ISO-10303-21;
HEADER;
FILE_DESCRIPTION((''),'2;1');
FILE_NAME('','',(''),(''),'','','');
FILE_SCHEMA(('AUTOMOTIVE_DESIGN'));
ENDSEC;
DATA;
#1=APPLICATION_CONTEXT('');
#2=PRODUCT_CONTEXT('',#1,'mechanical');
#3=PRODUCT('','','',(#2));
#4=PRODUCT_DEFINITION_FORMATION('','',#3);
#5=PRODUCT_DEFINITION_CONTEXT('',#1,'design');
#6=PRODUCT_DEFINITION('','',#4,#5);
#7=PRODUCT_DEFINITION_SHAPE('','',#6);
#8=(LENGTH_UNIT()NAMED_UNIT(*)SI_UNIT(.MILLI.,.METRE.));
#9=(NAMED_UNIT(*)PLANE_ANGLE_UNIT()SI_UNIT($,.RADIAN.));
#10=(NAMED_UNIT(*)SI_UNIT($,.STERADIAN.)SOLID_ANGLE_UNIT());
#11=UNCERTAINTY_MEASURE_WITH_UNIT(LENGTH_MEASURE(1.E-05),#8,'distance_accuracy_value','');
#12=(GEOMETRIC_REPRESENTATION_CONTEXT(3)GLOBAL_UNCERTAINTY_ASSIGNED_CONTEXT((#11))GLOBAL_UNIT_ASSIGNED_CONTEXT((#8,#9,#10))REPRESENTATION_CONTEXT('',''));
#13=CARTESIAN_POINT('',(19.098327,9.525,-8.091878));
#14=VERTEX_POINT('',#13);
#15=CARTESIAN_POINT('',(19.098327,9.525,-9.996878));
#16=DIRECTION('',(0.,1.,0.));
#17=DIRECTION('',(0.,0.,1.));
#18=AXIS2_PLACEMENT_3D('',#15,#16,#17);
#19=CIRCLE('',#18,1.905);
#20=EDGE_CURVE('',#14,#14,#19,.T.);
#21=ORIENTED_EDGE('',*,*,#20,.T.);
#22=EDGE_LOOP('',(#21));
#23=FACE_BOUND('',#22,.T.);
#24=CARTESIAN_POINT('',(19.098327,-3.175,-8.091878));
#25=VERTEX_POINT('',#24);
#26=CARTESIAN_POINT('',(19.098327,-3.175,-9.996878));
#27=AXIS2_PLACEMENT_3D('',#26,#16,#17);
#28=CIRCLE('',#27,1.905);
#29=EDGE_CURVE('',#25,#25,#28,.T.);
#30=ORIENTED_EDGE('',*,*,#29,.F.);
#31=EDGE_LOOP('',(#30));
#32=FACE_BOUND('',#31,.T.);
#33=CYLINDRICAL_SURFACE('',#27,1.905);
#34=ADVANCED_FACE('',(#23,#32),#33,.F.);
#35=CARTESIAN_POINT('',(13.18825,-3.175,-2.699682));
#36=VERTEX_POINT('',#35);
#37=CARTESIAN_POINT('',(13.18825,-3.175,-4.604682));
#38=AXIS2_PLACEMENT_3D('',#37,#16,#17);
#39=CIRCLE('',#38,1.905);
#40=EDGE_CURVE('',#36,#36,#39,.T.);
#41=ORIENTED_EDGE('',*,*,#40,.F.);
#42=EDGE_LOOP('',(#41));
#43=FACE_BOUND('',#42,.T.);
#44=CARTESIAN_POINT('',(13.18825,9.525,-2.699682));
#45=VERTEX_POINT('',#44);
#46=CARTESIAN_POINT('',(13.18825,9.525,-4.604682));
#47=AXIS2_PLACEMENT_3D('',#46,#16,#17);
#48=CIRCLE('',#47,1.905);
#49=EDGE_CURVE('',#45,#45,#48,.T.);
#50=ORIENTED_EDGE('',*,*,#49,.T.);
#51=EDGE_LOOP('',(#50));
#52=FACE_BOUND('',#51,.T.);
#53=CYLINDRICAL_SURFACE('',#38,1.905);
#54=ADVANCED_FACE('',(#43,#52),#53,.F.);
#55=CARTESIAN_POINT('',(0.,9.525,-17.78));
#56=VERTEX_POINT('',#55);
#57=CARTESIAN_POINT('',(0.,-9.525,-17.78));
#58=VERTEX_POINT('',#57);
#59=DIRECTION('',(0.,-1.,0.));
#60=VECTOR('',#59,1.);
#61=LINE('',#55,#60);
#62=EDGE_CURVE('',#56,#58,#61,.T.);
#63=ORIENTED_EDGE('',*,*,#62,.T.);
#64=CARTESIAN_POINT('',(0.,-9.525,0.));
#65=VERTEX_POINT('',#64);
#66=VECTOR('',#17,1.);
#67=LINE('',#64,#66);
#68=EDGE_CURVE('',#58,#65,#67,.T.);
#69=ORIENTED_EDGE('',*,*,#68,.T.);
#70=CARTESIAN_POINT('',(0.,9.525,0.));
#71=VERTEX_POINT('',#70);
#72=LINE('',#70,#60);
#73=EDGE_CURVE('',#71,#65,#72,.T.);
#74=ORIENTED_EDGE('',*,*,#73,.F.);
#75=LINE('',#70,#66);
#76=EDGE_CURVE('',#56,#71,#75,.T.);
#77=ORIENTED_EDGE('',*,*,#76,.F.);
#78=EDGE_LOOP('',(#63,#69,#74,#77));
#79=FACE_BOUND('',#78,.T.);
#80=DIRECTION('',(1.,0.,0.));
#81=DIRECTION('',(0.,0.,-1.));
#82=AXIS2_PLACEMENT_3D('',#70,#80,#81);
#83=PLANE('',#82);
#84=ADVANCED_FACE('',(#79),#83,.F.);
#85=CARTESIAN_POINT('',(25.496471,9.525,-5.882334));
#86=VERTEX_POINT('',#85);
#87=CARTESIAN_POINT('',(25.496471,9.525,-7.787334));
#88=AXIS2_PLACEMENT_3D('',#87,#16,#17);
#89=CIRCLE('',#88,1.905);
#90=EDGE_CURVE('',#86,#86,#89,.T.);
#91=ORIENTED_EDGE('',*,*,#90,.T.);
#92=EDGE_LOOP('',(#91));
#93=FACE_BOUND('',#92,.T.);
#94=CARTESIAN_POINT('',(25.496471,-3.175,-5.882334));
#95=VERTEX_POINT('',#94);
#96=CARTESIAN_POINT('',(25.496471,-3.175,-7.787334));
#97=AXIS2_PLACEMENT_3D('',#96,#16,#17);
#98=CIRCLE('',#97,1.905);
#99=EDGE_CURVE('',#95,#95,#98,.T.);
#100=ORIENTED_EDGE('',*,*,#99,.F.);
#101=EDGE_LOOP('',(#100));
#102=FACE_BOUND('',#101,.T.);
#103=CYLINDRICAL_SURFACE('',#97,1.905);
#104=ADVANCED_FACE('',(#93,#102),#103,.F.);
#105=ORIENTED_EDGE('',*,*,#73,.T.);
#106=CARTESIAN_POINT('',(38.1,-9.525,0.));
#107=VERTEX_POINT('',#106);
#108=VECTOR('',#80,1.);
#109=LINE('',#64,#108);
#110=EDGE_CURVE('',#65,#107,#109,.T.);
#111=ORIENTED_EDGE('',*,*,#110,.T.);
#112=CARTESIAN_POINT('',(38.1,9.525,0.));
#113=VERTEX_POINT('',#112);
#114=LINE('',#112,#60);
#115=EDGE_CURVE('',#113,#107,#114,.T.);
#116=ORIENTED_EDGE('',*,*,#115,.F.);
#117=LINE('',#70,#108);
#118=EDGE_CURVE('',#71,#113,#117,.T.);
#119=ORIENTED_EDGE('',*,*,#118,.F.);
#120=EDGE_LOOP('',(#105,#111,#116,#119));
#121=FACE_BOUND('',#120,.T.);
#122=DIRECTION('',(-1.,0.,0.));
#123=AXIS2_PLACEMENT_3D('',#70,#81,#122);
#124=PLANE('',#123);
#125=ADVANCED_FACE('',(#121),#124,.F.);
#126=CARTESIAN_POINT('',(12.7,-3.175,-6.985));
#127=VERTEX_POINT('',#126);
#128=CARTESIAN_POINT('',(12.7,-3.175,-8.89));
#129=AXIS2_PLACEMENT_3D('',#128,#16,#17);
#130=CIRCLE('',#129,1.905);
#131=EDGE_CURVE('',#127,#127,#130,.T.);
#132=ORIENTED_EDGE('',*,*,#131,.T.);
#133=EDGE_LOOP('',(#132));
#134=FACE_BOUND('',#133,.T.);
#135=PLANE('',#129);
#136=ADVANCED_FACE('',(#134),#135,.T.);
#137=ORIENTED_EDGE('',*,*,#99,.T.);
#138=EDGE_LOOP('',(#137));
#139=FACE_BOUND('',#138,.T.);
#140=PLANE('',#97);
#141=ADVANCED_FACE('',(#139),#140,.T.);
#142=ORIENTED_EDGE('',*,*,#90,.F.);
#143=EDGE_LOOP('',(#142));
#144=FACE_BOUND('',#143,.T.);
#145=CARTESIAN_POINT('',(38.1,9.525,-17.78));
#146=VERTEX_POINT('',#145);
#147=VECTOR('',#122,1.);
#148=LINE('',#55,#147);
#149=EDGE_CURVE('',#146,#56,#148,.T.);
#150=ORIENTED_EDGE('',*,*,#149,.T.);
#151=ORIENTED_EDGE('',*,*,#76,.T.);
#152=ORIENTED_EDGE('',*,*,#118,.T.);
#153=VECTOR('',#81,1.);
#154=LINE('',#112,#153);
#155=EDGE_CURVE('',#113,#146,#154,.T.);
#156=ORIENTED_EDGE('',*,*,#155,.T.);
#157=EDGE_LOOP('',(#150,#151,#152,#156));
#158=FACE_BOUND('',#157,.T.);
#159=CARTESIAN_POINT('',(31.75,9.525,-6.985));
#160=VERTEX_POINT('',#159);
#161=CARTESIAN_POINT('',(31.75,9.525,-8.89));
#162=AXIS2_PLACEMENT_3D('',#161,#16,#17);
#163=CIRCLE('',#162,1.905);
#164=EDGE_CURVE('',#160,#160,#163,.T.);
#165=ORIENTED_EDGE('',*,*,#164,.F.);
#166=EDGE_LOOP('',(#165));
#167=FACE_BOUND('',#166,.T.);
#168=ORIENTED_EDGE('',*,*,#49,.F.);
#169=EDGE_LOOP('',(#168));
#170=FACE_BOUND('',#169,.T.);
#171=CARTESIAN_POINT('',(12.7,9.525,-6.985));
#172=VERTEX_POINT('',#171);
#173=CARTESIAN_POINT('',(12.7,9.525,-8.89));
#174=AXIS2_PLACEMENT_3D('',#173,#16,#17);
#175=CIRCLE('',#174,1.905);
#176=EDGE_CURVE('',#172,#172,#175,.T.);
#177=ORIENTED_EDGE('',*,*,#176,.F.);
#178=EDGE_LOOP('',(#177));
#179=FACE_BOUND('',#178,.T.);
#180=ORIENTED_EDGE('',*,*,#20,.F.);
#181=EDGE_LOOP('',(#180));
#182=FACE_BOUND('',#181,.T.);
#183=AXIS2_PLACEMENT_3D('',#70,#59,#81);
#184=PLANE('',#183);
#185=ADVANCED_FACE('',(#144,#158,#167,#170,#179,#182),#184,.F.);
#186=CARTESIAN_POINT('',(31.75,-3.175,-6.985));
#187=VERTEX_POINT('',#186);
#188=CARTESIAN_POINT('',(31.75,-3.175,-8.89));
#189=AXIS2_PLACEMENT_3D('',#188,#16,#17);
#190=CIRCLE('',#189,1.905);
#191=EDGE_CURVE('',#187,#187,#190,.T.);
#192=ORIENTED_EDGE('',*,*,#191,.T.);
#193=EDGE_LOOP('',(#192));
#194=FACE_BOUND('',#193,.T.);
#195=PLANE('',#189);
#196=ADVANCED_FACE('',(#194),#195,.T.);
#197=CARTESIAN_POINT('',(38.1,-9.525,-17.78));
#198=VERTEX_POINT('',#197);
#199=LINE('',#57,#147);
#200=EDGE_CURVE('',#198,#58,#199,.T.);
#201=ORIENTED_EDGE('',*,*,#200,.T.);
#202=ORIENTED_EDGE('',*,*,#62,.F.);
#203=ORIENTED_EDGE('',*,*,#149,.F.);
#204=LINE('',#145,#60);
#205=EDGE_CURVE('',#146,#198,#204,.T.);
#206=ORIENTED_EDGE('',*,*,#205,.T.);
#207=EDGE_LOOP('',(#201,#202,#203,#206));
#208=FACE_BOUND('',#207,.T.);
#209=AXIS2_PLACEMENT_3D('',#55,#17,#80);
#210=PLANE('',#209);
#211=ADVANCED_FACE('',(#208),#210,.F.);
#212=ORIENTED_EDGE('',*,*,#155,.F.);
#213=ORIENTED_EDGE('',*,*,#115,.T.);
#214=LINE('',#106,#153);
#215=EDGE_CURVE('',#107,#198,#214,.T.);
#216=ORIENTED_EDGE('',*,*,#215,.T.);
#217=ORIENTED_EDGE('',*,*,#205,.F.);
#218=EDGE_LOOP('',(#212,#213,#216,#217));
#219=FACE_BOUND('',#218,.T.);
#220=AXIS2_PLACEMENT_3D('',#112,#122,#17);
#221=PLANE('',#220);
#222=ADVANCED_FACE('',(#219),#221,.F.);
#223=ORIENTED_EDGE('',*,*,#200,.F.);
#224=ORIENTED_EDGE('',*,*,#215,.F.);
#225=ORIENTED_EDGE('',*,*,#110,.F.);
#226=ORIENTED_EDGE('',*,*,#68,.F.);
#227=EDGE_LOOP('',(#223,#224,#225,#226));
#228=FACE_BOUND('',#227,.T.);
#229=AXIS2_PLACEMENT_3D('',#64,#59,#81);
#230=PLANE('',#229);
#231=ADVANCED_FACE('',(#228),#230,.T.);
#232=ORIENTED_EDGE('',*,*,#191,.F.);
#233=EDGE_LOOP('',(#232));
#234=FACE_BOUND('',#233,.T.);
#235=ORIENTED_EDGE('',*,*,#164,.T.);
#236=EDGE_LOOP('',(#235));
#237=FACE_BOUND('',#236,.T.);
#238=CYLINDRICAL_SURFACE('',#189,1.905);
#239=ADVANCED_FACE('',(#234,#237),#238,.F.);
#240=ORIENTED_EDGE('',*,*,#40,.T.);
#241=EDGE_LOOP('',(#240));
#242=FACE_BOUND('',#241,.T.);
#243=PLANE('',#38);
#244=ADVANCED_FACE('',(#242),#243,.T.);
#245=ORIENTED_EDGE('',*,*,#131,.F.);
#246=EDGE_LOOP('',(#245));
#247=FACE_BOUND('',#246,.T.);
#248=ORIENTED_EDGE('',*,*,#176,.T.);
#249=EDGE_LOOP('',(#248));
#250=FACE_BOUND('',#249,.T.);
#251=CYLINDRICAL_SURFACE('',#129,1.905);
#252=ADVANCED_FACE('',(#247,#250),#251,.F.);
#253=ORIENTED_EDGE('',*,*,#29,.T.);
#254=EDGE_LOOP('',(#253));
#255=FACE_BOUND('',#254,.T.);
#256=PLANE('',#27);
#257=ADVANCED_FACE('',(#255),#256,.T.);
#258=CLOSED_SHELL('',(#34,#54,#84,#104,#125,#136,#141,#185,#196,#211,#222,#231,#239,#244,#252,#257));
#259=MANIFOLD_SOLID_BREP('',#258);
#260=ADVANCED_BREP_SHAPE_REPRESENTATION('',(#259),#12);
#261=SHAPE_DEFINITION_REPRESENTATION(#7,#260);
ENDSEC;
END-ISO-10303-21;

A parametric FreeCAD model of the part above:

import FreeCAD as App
import Part
import Sketcher
from FreeCAD import Vector
Q = App.Units.Quantity

doc = App.newDocument("Part")
params = doc.addObject("Spreadsheet::Sheet", "Params")
for row, (alias, value) in enumerate([
    ("sketch1_width", "1.5 in"),
    ("sketch1_height", "0.7 in"),
    ("pad1_length", "0.75 in"),
    ("sketch2_diameter", "0.15 in"),
    ("pocket1_length", "0.5 in"),
], start=1):
    params.set(f"A{row}", alias)
    params.set(f"B{row}", "=" + value)
    params.setAlias(f"B{row}", alias)

body = doc.addObject("PartDesign::Body", "Body")

sketch1 = body.newObject("Sketcher::SketchObject", "Sketch")
sketch1.AttachmentSupport = (doc.getObject("XZ_Plane"), [""])
sketch1.MapMode = "FlatFace"
sketch1.addGeometry([
    Part.LineSegment(Vector(0, -18, 0), Vector(0, 0, 0)),
    Part.LineSegment(Vector(0, 0, 0), Vector(38, 0, 0)),
    Part.LineSegment(Vector(38, 0, 0), Vector(38, -18, 0)),
    Part.LineSegment(Vector(38, -18, 0), Vector(0, -18, 0)),
], False)
sketch1.addConstraint([
    Sketcher.Constraint("Coincident", 0, 2, 1, 1),
    Sketcher.Constraint("Coincident", 1, 2, 2, 1),
    Sketcher.Constraint("Coincident", 2, 2, 3, 1),
    Sketcher.Constraint("Coincident", 3, 2, 0, 1),
    Sketcher.Constraint("Vertical", 0),
    Sketcher.Constraint("Horizontal", 1),
    Sketcher.Constraint("Vertical", 2),
    Sketcher.Constraint("Horizontal", 3),
    Sketcher.Constraint("Coincident", 0, 2, -1, 1),
    Sketcher.Constraint("DistanceX", 1, 1, 1, 2, Q("1.5 in")),
    Sketcher.Constraint("DistanceY", 0, 1, 0, 2, Q("0.7 in")),
])
sketch1.setExpression("Constraints[9]", "Params.sketch1_width")
sketch1.setExpression("Constraints[10]", "Params.sketch1_height")
pad1 = body.newObject("PartDesign::Pad", "Pad")
pad1.Profile = sketch1
pad1.setExpression("Length", "Params.pad1_length")
pad1.Midplane = True

sketch2 = body.newObject("Sketcher::SketchObject", "Sketch001")
sketch2.AttachmentSupport = (doc.getObject("XZ_Plane"), [""])
sketch2.MapMode = "FlatFace"
sketch2.AttachmentOffset = App.Placement(Vector(0, 0, -0.375 * 25.4), App.Rotation())
sketch2.addGeometry([
    Part.Circle(Vector(31.8, -8.9, 0), Vector(0, 0, 1), 1.9),
    Part.Circle(Vector(19.1, -10, 0), Vector(0, 0, 1), 1.9),
    Part.Circle(Vector(12.7, -8.9, 0), Vector(0, 0, 1), 1.9),
    Part.Circle(Vector(25.5, -7.8, 0), Vector(0, 0, 1), 1.9),
    Part.Circle(Vector(13.2, -4.6, 0), Vector(0, 0, 1), 1.9),
], False)
sketch2.addConstraint([
    Sketcher.Constraint("Equal", 0, 1),
    Sketcher.Constraint("Equal", 1, 2),
    Sketcher.Constraint("Equal", 2, 3),
    Sketcher.Constraint("Equal", 3, 4),
    Sketcher.Constraint("Horizontal", 0, 3, 2, 3),
    Sketcher.Constraint("Diameter", 0, Q("0.15 in")),
    Sketcher.Constraint("DistanceX", -1, 1, 2, 3, Q("0.5 in")),
    Sketcher.Constraint("DistanceX", -1, 1, 0, 3, Q("1.25 in")),
    Sketcher.Constraint("DistanceY", 0, 3, -1, 1, Q("0.35 in")),
    Sketcher.Constraint("DistanceX", -1, 1, 3, 3, Q("25.496471 mm")),
    Sketcher.Constraint("DistanceX", -1, 1, 4, 3, Q("13.18825 mm")),
    Sketcher.Constraint("DistanceY", 3, 3, 4, 3, Q("3.182652 mm")),
    Sketcher.Constraint("DistanceX", -1, 1, 1, 3, Q("19.098327 mm")),
    Sketcher.Constraint("DistanceY", 1, 3, -1, 1, Q("9.996878 mm")),
    Sketcher.Constraint("DistanceY", 3, 3, -1, 1, Q("7.787334 mm")),
])
sketch2.setExpression("Constraints[5]", "Params.sketch2_diameter")
pocket1 = body.newObject("PartDesign::Pocket", "Pocket")
pocket1.Profile = sketch2
pocket1.setExpression("Length", "Params.pocket1_length")
pocket1.Reversed = True

doc.recompute()
